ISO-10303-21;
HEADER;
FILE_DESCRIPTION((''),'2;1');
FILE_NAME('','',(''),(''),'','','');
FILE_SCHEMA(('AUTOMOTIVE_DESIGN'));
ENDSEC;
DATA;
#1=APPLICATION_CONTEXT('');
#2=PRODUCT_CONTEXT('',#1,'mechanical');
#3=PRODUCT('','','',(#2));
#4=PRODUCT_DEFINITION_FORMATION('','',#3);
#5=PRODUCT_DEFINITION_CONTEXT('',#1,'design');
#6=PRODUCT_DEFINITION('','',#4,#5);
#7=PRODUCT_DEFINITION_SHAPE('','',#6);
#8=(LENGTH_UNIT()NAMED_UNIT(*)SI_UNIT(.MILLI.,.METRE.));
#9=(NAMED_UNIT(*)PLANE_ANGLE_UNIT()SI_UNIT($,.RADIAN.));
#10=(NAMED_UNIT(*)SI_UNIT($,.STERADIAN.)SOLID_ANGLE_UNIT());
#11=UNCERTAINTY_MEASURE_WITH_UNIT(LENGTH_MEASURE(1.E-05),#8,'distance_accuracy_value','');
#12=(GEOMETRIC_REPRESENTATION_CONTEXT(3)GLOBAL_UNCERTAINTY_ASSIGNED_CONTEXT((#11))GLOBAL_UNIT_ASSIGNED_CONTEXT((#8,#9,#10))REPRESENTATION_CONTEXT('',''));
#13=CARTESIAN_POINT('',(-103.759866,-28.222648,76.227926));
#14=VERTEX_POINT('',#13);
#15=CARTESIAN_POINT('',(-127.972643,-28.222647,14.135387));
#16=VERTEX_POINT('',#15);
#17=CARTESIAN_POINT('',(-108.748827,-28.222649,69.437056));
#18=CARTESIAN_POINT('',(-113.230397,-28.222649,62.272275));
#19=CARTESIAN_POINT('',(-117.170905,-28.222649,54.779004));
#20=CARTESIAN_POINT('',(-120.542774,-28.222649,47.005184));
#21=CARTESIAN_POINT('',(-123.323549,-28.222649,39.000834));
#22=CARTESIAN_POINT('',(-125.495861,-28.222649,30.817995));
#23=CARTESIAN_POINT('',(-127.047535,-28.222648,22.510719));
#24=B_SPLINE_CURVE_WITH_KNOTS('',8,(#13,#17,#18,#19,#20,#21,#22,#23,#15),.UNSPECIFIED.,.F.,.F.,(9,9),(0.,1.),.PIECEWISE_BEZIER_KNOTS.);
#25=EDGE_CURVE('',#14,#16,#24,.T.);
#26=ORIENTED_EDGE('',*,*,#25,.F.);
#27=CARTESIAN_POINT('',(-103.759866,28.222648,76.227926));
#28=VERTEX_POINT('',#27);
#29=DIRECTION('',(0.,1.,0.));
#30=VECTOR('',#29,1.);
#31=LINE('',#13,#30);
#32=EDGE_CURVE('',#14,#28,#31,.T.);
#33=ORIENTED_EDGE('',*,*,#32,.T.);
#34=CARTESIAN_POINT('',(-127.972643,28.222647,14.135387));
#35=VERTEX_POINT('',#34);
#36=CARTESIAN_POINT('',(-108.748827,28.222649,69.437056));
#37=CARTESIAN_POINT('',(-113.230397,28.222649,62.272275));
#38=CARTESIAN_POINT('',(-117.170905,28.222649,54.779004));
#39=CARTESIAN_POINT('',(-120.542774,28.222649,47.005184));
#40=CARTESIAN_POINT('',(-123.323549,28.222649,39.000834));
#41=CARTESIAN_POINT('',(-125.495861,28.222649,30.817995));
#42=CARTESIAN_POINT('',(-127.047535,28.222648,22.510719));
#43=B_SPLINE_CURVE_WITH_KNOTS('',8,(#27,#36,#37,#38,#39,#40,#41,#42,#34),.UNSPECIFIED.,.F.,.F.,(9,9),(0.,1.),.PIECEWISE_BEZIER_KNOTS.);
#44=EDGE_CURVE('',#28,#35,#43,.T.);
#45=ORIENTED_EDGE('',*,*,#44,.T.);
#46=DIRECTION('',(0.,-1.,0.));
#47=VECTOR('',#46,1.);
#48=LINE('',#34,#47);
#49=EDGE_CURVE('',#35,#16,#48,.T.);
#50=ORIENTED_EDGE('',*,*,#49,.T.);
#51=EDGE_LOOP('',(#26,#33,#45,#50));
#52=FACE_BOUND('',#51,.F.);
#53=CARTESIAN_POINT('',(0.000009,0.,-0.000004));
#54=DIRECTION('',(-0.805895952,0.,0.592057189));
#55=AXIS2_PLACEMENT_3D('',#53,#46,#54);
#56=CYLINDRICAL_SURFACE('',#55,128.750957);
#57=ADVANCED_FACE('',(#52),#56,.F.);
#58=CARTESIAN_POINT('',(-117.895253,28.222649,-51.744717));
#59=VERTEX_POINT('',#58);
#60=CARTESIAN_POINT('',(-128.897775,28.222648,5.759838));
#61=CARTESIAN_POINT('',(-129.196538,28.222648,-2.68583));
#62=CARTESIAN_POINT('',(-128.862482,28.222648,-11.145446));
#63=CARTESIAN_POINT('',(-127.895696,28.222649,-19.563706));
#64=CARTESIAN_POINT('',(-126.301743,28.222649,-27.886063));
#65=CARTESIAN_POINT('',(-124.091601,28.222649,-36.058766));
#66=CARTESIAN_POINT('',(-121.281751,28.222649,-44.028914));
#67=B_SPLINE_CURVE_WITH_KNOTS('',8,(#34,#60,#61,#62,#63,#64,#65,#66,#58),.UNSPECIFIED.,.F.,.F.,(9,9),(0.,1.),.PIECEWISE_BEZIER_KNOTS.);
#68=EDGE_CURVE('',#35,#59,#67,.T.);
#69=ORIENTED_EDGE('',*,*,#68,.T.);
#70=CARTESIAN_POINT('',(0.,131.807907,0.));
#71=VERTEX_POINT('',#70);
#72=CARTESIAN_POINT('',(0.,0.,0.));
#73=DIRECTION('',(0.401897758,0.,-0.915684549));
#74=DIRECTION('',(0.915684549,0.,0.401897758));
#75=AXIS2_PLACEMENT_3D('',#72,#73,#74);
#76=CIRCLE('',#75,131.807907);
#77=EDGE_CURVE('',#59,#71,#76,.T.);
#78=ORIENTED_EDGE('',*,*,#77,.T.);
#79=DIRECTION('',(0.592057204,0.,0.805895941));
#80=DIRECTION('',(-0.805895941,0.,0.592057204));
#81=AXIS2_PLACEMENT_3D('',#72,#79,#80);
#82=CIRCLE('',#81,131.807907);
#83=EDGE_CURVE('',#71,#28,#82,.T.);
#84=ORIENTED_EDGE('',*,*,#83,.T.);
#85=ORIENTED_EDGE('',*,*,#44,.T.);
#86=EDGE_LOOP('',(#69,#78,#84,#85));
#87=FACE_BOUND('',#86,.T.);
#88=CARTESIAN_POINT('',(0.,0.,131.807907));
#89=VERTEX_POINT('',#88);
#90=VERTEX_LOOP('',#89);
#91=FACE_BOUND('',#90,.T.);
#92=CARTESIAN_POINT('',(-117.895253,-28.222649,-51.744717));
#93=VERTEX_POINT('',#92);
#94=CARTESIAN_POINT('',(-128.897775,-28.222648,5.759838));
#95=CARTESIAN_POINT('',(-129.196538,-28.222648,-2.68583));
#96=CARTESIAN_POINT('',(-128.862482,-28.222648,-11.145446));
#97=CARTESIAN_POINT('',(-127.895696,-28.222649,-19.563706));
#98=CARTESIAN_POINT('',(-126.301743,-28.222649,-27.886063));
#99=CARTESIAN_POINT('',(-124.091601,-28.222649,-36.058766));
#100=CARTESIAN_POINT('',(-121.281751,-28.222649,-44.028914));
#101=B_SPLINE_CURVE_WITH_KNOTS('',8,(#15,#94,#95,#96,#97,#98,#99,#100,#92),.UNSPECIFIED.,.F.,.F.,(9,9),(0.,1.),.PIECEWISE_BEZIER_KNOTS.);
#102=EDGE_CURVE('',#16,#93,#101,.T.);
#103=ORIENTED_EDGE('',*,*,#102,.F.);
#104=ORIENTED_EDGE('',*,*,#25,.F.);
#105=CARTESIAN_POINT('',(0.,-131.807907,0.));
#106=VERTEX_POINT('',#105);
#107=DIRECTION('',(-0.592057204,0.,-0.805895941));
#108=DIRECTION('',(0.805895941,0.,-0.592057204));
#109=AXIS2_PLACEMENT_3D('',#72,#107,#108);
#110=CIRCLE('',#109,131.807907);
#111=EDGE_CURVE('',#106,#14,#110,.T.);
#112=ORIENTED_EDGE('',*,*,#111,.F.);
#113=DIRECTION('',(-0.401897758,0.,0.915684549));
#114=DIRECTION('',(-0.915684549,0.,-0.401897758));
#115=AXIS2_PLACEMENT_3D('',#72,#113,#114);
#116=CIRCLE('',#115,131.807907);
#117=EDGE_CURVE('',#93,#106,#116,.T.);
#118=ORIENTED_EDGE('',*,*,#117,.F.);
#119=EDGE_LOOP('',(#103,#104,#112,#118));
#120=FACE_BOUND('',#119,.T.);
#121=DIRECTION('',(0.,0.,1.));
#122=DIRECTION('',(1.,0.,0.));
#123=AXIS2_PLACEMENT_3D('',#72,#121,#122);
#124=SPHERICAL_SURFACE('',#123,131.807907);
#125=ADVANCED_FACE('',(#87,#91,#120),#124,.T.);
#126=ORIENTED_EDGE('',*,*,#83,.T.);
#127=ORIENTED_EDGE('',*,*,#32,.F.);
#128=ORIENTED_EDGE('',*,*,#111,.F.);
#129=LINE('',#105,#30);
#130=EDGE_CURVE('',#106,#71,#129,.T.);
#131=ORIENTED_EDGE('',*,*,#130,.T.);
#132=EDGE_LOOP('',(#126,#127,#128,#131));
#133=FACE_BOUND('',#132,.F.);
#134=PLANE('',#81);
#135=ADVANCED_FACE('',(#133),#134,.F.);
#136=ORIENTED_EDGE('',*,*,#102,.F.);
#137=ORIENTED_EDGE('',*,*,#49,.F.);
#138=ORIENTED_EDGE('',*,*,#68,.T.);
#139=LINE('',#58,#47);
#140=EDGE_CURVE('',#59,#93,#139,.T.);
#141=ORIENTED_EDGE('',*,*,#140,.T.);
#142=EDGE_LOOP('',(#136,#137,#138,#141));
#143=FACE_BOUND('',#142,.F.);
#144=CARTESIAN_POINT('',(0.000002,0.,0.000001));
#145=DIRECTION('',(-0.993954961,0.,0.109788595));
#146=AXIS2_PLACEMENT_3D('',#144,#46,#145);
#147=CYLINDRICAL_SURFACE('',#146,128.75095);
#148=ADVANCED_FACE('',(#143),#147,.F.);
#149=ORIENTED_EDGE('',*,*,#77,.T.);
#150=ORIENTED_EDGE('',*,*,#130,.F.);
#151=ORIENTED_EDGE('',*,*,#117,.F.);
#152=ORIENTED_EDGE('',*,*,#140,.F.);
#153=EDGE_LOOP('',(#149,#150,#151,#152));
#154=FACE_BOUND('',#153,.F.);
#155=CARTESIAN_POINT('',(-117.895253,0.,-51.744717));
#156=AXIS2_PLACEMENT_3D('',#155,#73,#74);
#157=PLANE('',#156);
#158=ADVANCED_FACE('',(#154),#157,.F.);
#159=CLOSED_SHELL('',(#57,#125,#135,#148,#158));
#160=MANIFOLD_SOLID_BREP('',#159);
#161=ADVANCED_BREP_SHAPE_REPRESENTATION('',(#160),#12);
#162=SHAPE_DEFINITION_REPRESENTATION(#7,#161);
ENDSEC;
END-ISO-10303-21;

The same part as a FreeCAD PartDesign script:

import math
import FreeCAD as App
import Part
import Sketcher
from FreeCAD import Vector
Q = App.Units.Quantity

doc = App.newDocument("Part")
body = doc.addObject("PartDesign::Body", "Body")

# Sketch on XZ plane
sketch1 = body.newObject("Sketcher::SketchObject", "Sketch")
sketch1.AttachmentSupport = (doc.getObject("XZ_Plane"), [""])
sketch1.MapMode = "FlatFace"
sketch1.addGeometry([
    Part.LineSegment(Vector(0, 132, 0), Vector(0, -132, 0)),
    Part.ArcOfCircle(Part.Circle(Vector(0, 0, 0), Vector(0, 0, 1), 132), math.radians(-90), math.radians(90)),
], False)
sketch1.addConstraint([
    Sketcher.Constraint("Coincident", 0, 1, 1, 2),
    Sketcher.Constraint("Coincident", 1, 1, 0, 2),
    Sketcher.Constraint("Vertical", 0),
    Sketcher.Constraint("Coincident", 1, 3, -1, 1),
    Sketcher.Constraint("PointOnObject", 0, 1, -2),
    Sketcher.Constraint("Radius", 1, Q("131.807907 mm")),
])
revolution = body.newObject("PartDesign::Revolution", "Revolution")
revolution.Profile = sketch1
revolution.ReferenceAxis = (sketch1, ["V_Axis"])
revolution.Angle = 360

# Sketch on XZ plane
sketch2 = body.newObject("Sketcher::SketchObject", "Sketch001")
sketch2.AttachmentSupport = (doc.getObject("XZ_Plane"), [""])
sketch2.MapMode = "FlatFace"
sketch2.addGeometry([
    Part.LineSegment(Vector(0, 0, 0), Vector(-104, 76, 0)),
    Part.ArcOfCircle(Part.Circle(Vector(0, 0, 0), Vector(0, 0, 1), 129), math.radians(144), math.radians(174)),
    Part.ArcOfCircle(Part.Circle(Vector(0, 0, 0), Vector(0, 0, 1), 129), math.radians(174), math.radians(204)),
    Part.LineSegment(Vector(-118, -52, 0), Vector(0, 0, 0)),
], False)
sketch2.addConstraint([
    Sketcher.Constraint("Coincident", 0, 2, 1, 1),
    Sketcher.Constraint("Tangent", 1, 2, 2, 1),
    Sketcher.Constraint("Coincident", 2, 2, 3, 1),
    Sketcher.Constraint("Coincident", 3, 2, 0, 1),
    Sketcher.Constraint("Coincident", 1, 3, -1, 1),
    Sketcher.Constraint("Coincident", 3, 2, -1, 1),
    Sketcher.Constraint("PointOnObject", 2, 3, -1),
    Sketcher.Constraint("Radius", 2, Q("128.75095 mm")),
    Sketcher.Constraint("DistanceX", 0, 2, 2, 3, Q("103.759868 mm")),
    Sketcher.Constraint("DistanceY", 1, 2, 0, 2, Q("62.092539 mm")),
    Sketcher.Constraint("DistanceX", 1, 2, 2, 2, Q("10.07739 mm")),
])
pocket1 = body.newObject("PartDesign::Pocket", "Pocket")
pocket1.Profile = sketch2
pocket1.Length = Q("9.2 in")

# Sketch on XZ plane
sketch3 = body.newObject("Sketcher::SketchObject", "Sketch002")
sketch3.AttachmentSupport = (doc.getObject("XZ_Plane"), [""])
sketch3.MapMode = "FlatFace"
sketch3.addGeometry([
    Part.LineSegment(Vector(0, 0, 0), Vector(-104, 76, 0)),
    Part.ArcOfCircle(Part.Circle(Vector(0, 0, 0), Vector(0, 0, 1), 129), math.radians(144), math.radians(174)),
    Part.ArcOfCircle(Part.Circle(Vector(0, 0, 0), Vector(0, 0, 1), 129), math.radians(174), math.radians(204)),
    Part.LineSegment(Vector(-118, -52, 0), Vector(0, 0, 0)),
], False)
sketch3.addConstraint([
    Sketcher.Constraint("Coincident", 0, 2, 1, 1),
    Sketcher.Constraint("Tangent", 1, 2, 2, 1),
    Sketcher.Constraint("Coincident", 2, 2, 3, 1),
    Sketcher.Constraint("Coincident", 3, 2, 0, 1),
    Sketcher.Constraint("Coincident", 1, 3, -1, 1),
    Sketcher.Constraint("Coincident", 3, 2, -1, 1),
    Sketcher.Constraint("PointOnObject", 2, 3, -1),
    Sketcher.Constraint("Radius", 2, Q("128.75095 mm")),
    Sketcher.Constraint("DistanceX", 0, 2, 2, 3, Q("103.759868 mm")),
    Sketcher.Constraint("DistanceY", 1, 2, 0, 2, Q("62.092539 mm")),
    Sketcher.Constraint("DistanceX", 1, 2, 2, 2, Q("10.07739 mm")),
])
pocket2 = body.newObject("PartDesign::Pocket", "Pocket001")
pocket2.Profile = sketch3
pocket2.Length = Q("9.5 in")
pocket2.Reversed = True

doc.recompute()
